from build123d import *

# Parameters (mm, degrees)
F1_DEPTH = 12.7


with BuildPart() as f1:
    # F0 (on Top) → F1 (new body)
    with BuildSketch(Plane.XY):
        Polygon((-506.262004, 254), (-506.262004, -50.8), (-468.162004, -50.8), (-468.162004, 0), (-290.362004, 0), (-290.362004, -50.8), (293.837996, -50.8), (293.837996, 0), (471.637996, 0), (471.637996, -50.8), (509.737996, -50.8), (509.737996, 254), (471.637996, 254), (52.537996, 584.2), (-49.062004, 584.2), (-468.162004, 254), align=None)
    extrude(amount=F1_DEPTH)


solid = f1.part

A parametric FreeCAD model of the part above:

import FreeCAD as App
import Part
import Sketcher
from FreeCAD import Vector
Q = App.Units.Quantity

doc = App.newDocument("Part")
body = doc.addObject("PartDesign::Body", "Body")

sketch1 = doc.addObject("Sketcher::SketchObject", "Sketch")
body.addObject(sketch1)
sketch1.AttachmentSupport = (doc.XY_Plane, [""])
sketch1.MapMode = "FlatFace"
sketch1.addGeometry([
    Part.LineSegment(Vector(-506, 254, 0), Vector(-506, -51, 0)),
    Part.LineSegment(Vector(-506, -51, 0), Vector(-468, -51, 0)),
    Part.LineSegment(Vector(-468, -51, 0), Vector(-468, 0, 0)),
    Part.LineSegment(Vector(-468, 0, 0), Vector(-290, 0, 0)),
    Part.LineSegment(Vector(-290, 0, 0), Vector(-290, -51, 0)),
    Part.LineSegment(Vector(-290, -51, 0), Vector(294, -51, 0)),
    Part.LineSegment(Vector(294, -51, 0), Vector(294, 0, 0)),
    Part.LineSegment(Vector(294, 0, 0), Vector(472, 0, 0)),
    Part.LineSegment(Vector(472, 0, 0), Vector(472, -51, 0)),
    Part.LineSegment(Vector(472, -51, 0), Vector(510, -51, 0)),
    Part.LineSegment(Vector(510, -51, 0), Vector(510, 254, 0)),
    Part.LineSegment(Vector(510, 254, 0), Vector(472, 254, 0)),
    Part.LineSegment(Vector(472, 254, 0), Vector(53, 584, 0)),
    Part.LineSegment(Vector(53, 584, 0), Vector(-49, 584, 0)),
    Part.LineSegment(Vector(-49, 584, 0), Vector(-468, 254, 0)),
    Part.LineSegment(Vector(-468, 254, 0), Vector(-506, 254, 0)),
], False)
sketch1.addConstraint([
    Sketcher.Constraint("Coincident", 0, 2, 1, 1),
    Sketcher.Constraint("Coincident", 1, 2, 2, 1),
    Sketcher.Constraint("Coincident", 2, 2, 3, 1),
    Sketcher.Constraint("Coincident", 3, 2, 4, 1),
    Sketcher.Constraint("Coincident", 4, 2, 5, 1),
    Sketcher.Constraint("Coincident", 5, 2, 6, 1),
    Sketcher.Constraint("Coincident", 6, 2, 7, 1),
    Sketcher.Constraint("Coincident", 7, 2, 8, 1),
    Sketcher.Constraint("Coincident", 8, 2, 9, 1),
    Sketcher.Constraint("Coincident", 9, 2, 10, 1),
    Sketcher.Constraint("Coincident", 10, 2, 11, 1),
    Sketcher.Constraint("Coincident", 11, 2, 12, 1),
    Sketcher.Constraint("Coincident", 12, 2, 13, 1),
    Sketcher.Constraint("Coincident", 13, 2, 14, 1),
    Sketcher.Constraint("Coincident", 14, 2, 15, 1),
    Sketcher.Constraint("Coincident", 15, 2, 0, 1),
    Sketcher.Constraint("Vertical", 0),
    Sketcher.Constraint("Horizontal", 1),
    Sketcher.Constraint("Vertical", 2),
    Sketcher.Constraint("Horizontal", 3),
    Sketcher.Constraint("Vertical", 4),
    Sketcher.Constraint("Horizontal", 5),
    Sketcher.Constraint("Vertical", 6),
    Sketcher.Constraint("Horizontal", 7),
    Sketcher.Constraint("Vertical", 8),
    Sketcher.Constraint("Horizontal", 9),
    Sketcher.Constraint("Vertical", 10),
    Sketcher.Constraint("Horizontal", 11),
    Sketcher.Constraint("Horizontal", 13),
    Sketcher.Constraint("Horizontal", 15),
    Sketcher.Constraint("PointOnObject", 2, 2, -1),
    Sketcher.Constraint("PointOnObject", 6, 2, -1),
    Sketcher.Constraint("Horizontal", 1, 2, 4, 2),
    Sketcher.Constraint("Horizontal", 5, 2, 8, 2),
    Sketcher.Constraint("Horizontal", 11, 2, 14, 2),
    Sketcher.Constraint("Vertical", 8, 2, 11, 2),
    Sketcher.Constraint("Vertical", 2, 2, 14, 2),
    Sketcher.Constraint("Equal", 3, 7),
    Sketcher.Constraint("Equal", 1, 9),
    Sketcher.Constraint("Equal", 12, 14),
    Sketcher.Constraint("DistanceX", 3, 1, 3, 2, Q("7 in")),
    Sketcher.Constraint("DistanceX", 5, 1, 5, 2, Q("23 in")),
    Sketcher.Constraint("DistanceX", 13, 2, 13, 1, Q("4 in")),
    Sketcher.Constraint("DistanceY", 0, 2, 0, 1, Q("12 in")),
    Sketcher.Constraint("DistanceY", 2, 1, 2, 2, Q("2 in")),
    Sketcher.Constraint("DistanceX", 1, 1, 1, 2, Q("1.5 in")),
    Sketcher.Constraint("DistanceY", -1, 1, 12, 2, Q("23 in")),
    Sketcher.Constraint("DistanceX", 0, 2, -1, 1, Q("506.262004 mm")),
])
pad1 = doc.addObject("PartDesign::Pad", "Pad")
body.addObject(pad1)
pad1.Profile = sketch1
pad1.Length = Q("0.5 in")

doc.recompute()
